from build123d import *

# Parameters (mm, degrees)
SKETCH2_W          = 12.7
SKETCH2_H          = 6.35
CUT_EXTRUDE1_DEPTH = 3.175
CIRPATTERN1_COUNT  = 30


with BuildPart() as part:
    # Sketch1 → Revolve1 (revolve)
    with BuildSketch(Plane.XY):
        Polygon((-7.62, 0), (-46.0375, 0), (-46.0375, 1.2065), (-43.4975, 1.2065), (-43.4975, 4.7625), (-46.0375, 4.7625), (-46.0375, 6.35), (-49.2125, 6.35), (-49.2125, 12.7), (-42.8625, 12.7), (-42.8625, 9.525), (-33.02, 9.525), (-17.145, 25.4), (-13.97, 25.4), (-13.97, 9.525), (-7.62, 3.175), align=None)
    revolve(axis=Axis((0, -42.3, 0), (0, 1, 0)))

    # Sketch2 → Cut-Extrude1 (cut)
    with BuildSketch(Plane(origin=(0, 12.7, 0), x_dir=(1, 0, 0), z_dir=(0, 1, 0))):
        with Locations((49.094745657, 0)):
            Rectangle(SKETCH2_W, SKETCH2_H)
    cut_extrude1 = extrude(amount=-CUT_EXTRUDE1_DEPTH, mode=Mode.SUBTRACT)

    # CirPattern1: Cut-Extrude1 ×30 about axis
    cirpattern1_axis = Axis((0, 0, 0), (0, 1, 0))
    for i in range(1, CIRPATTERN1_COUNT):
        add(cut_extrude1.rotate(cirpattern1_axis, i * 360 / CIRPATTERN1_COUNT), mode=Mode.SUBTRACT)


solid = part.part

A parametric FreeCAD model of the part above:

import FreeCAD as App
import Part
import Sketcher
Q = App.Units.Quantity

doc = App.newDocument("Part")
body = doc.addObject("PartDesign::Body", "Body")

sketch1 = doc.addObject("Sketcher::SketchObject", "Sketch")
body.addObject(sketch1)
sketch1.AttachmentSupport = (doc.XY_Plane, [""])
sketch1.MapMode = "FlatFace"
sketch1.addGeometry([
    Part.LineSegment(App.Vector(-46.0375, 0, 0), App.Vector(-7.62, 0, 0)),
    Part.LineSegment(App.Vector(-7.62, 0, 0), App.Vector(-7.62, 3.175, 0)),
    Part.LineSegment(App.Vector(-7.62, 3.175, 0), App.Vector(-13.97, 9.525, 0)),
    Part.LineSegment(App.Vector(-13.97, 9.525, 0), App.Vector(-13.97, 25.4, 0)),
    Part.LineSegment(App.Vector(-13.97, 25.4, 0), App.Vector(-17.145, 25.4, 0)),
    Part.LineSegment(App.Vector(-17.145, 25.4, 0), App.Vector(-33.02, 9.525, 0)),
    Part.LineSegment(App.Vector(-33.02, 9.525, 0), App.Vector(-42.8625, 9.525, 0)),
    Part.LineSegment(App.Vector(-42.8625, 9.525, 0), App.Vector(-42.8625, 12.7, 0)),
    Part.LineSegment(App.Vector(-42.8625, 12.7, 0), App.Vector(-49.2125, 12.7, 0)),
    Part.LineSegment(App.Vector(-49.2125, 12.7, 0), App.Vector(-49.2125, 6.35, 0)),
    Part.LineSegment(App.Vector(-49.2125, 6.35, 0), App.Vector(-46.0375, 6.35, 0)),
    Part.LineSegment(App.Vector(-46.0375, 6.35, 0), App.Vector(-46.0375, 4.7625, 0)),
    Part.LineSegment(App.Vector(-46.0375, 4.7625, 0), App.Vector(-43.4975, 4.7625, 0)),
    Part.LineSegment(App.Vector(-43.4975, 4.7625, 0), App.Vector(-43.4975, 1.2065, 0)),
    Part.LineSegment(App.Vector(-43.4975, 1.2065, 0), App.Vector(-46.0375, 1.2065, 0)),
    Part.LineSegment(App.Vector(-46.0375, 1.2065, 0), App.Vector(-46.0375, 0, 0)),
], False)
sketch1.addConstraint([
    Sketcher.Constraint("Coincident", 0, 2, 1, 1),
    Sketcher.Constraint("Coincident", 1, 2, 2, 1),
    Sketcher.Constraint("Coincident", 2, 2, 3, 1),
    Sketcher.Constraint("Coincident", 3, 2, 4, 1),
    Sketcher.Constraint("Coincident", 4, 2, 5, 1),
    Sketcher.Constraint("Coincident", 5, 2, 6, 1),
    Sketcher.Constraint("Coincident", 6, 2, 7, 1),
    Sketcher.Constraint("Coincident", 7, 2, 8, 1),
    Sketcher.Constraint("Coincident", 8, 2, 9, 1),
    Sketcher.Constraint("Coincident", 9, 2, 10, 1),
    Sketcher.Constraint("Coincident", 10, 2, 11, 1),
    Sketcher.Constraint("Coincident", 11, 2, 12, 1),
    Sketcher.Constraint("Coincident", 12, 2, 13, 1),
    Sketcher.Constraint("Coincident", 13, 2, 14, 1),
    Sketcher.Constraint("Coincident", 14, 2, 15, 1),
    Sketcher.Constraint("Coincident", 15, 2, 0, 1),
    Sketcher.Constraint("Horizontal", 0),
    Sketcher.Constraint("Vertical", 1),
    Sketcher.Constraint("Vertical", 3),
    Sketcher.Constraint("Horizontal", 4),
    Sketcher.Constraint("Horizontal", 6),
    Sketcher.Constraint("Vertical", 7),
    Sketcher.Constraint("Horizontal", 8),
    Sketcher.Constraint("Vertical", 9),
    Sketcher.Constraint("Horizontal", 10),
    Sketcher.Constraint("Vertical", 11),
    Sketcher.Constraint("Horizontal", 12),
    Sketcher.Constraint("Vertical", 13),
    Sketcher.Constraint("Horizontal", 14),
    Sketcher.Constraint("Vertical", 15),
    Sketcher.Constraint("PointOnObject", 0, 2, -1),
    Sketcher.Constraint("Perpendicular", 2, 5),
    Sketcher.Constraint("Horizontal", 2, 2, 5, 2),
    Sketcher.Constraint("Vertical", 11, 2, 14, 2),
    Sketcher.Constraint("Equal", 4, 10),
    Sketcher.Constraint("Equal", 10, 1),
    Sketcher.Constraint("Equal", 1, 7),
    Sketcher.Constraint("Equal", 8, 9),
    Sketcher.Constraint("DistanceX", 12, 1, 12, 2, Q("0.1 in")),
    Sketcher.Constraint("DistanceY", -1, 1, 3, 2, Q("1 in")),
    Sketcher.Constraint("Angle", 2, Q("135 deg")),
    Sketcher.Constraint("DistanceX", 8, 2, 8, 1, Q("0.25 in")),
    Sketcher.Constraint("DistanceY", 13, 2, 13, 1, Q("0.14 in")),
    Sketcher.Constraint("DistanceX", 0, 2, -1, 1, Q("0.3 in")),
    Sketcher.Constraint("DistanceY", -1, 1, 7, 2, Q("0.5 in")),
    Sketcher.Constraint("DistanceX", 4, 2, 4, 1, Q("0.125 in")),
    Sketcher.Constraint("DistanceY", 11, 2, 11, 1, Q("0.0625 in")),
    Sketcher.Constraint("DistanceX", 0, 1, 0, 2, Q("1.5125 in")),
])
revolution = doc.addObject("PartDesign::Revolution", "Revolution")
body.addObject(revolution)
revolution.Profile = sketch1
revolution.ReferenceAxis = (sketch1, ["V_Axis"])
revolution.Angle = 360

sketch2 = doc.addObject("Sketcher::SketchObject", "Sketch001")
body.addObject(sketch2)
sketch2.AttachmentSupport = (doc.XZ_Plane, [""])
sketch2.MapMode = "FlatFace"
sketch2.AttachmentOffset = App.Placement(App.Vector(0, 0, -0.5 * 25.4), App.Rotation())
sketch2.addGeometry([
    Part.LineSegment(App.Vector(42.744746, -3.175, 0), App.Vector(42.744746, 3.175, 0)),
    Part.LineSegment(App.Vector(42.744746, 3.175, 0), App.Vector(55.444746, 3.175, 0)),
    Part.LineSegment(App.Vector(55.444746, 3.175, 0), App.Vector(55.444746, -3.175, 0)),
    Part.LineSegment(App.Vector(55.444746, -3.175, 0), App.Vector(42.744746, -3.175, 0)),
], False)
sketch2.addConstraint([
    Sketcher.Constraint("Coincident", 0, 2, 1, 1),
    Sketcher.Constraint("Coincident", 1, 2, 2, 1),
    Sketcher.Constraint("Coincident", 2, 2, 3, 1),
    Sketcher.Constraint("Coincident", 3, 2, 0, 1),
    Sketcher.Constraint("Vertical", 0),
    Sketcher.Constraint("Horizontal", 1),
    Sketcher.Constraint("Vertical", 2),
    Sketcher.Constraint("Horizontal", 3),
    Sketcher.Constraint("DistanceX", 1, 1, 1, 2, Q("0.5 in")),
    Sketcher.Constraint("DistanceY", 0, 1, 0, 2, Q("0.25 in")),
    Sketcher.Constraint("DistanceY", -1, 1, 0, 2, Q("0.125 in")),
    Sketcher.Constraint("DistanceX", -1, 1, 0, 2, Q("42.744746 mm")),
])
pocket1 = doc.addObject("PartDesign::Pocket", "Pocket")
body.addObject(pocket1)
pocket1.Profile = sketch2
pocket1.Length = Q("0.125 in")
pocket1.Reversed = True
doc.recompute()

polarpattern = doc.addObject("PartDesign::PolarPattern", "PolarPattern")
body.addObject(polarpattern)
polarpattern.Originals = [pocket1]
polarpattern.Axis = (doc.Y_Axis, [""])
polarpattern.Angle = 360
polarpattern.Occurrences = 30
body.Tip = polarpattern

doc.recompute()
